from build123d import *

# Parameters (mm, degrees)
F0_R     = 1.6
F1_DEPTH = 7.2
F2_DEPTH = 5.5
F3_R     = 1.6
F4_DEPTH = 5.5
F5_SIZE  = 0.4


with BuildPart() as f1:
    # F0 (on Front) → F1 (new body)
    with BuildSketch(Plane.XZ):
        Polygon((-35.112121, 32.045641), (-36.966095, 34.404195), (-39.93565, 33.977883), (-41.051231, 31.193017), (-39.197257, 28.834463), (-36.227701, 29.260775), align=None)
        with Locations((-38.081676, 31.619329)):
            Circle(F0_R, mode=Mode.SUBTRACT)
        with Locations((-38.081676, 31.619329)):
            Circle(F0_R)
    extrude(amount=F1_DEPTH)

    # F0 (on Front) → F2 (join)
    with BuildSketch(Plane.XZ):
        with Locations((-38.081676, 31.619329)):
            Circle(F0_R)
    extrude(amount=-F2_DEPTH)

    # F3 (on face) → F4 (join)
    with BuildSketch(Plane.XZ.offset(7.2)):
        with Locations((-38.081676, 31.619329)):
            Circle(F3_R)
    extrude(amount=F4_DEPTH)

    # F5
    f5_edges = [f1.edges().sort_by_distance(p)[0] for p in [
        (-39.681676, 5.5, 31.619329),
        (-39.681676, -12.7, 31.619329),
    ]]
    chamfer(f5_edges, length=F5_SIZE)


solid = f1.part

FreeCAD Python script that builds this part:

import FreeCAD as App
import Part
import Sketcher

V = App.Vector


def edges_at(feature, points):
    """Names of the edges that pass closest to the given points."""
    edges = feature.Shape.Edges
    near = lambda p: min(range(len(edges)), key=lambda i: edges[i].distToShape(Part.Vertex(*p))[0])
    return sorted({f"Edge{near(p) + 1}" for p in points})

doc = App.newDocument("Part")
body = doc.addObject("PartDesign::Body", "Body")

# Sketch on XZ plane
sketch1 = doc.addObject("Sketcher::SketchObject", "Sketch")
body.addObject(sketch1)
sketch1.AttachmentSupport = (doc.XZ_Plane, [""])
sketch1.MapMode = "FlatFace"
sketch1.addGeometry(Part.LineSegment(V(-35.1, 32, 0), V(-37, 34.4, 0)), False)
sketch1.addGeometry(Part.LineSegment(V(-37, 34.4, 0), V(-39.9, 34, 0)), False)
sketch1.addGeometry(Part.LineSegment(V(-39.9, 34, 0), V(-41.1, 31.2, 0)), False)
sketch1.addGeometry(Part.LineSegment(V(-41.1, 31.2, 0), V(-39.2, 28.8, 0)), False)
sketch1.addGeometry(Part.LineSegment(V(-39.2, 28.8, 0), V(-36.2, 29.3, 0)), False)
sketch1.addGeometry(Part.LineSegment(V(-36.2, 29.3, 0), V(-35.1, 32, 0)), False)
sketch1.addConstraint(Sketcher.Constraint("Coincident", 0, 2, 1, 1))
sketch1.addConstraint(Sketcher.Constraint("Coincident", 1, 2, 2, 1))
sketch1.addConstraint(Sketcher.Constraint("Coincident", 2, 2, 3, 1))
sketch1.addConstraint(Sketcher.Constraint("Coincident", 3, 2, 4, 1))
sketch1.addConstraint(Sketcher.Constraint("Coincident", 4, 2, 5, 1))
sketch1.addConstraint(Sketcher.Constraint("Coincident", 5, 2, 0, 1))
sketch1.addConstraint(Sketcher.Constraint("Parallel", 0, 3))
sketch1.addConstraint(Sketcher.Constraint("Parallel", 1, 4))
sketch1.addConstraint(Sketcher.Constraint("Parallel", 2, 5))
sketch1.addConstraint(Sketcher.Constraint("Equal", 0, 1))
sketch1.addConstraint(Sketcher.Constraint("Equal", 1, 2))
sketch1.addConstraint(Sketcher.Constraint("Equal", 2, 3))
sketch1.addConstraint(Sketcher.Constraint("Distance", 0, 2.999999))
sketch1.addConstraint(Sketcher.Constraint("DistanceX", 4, 2, -1, 1, 36.227701))
sketch1.addConstraint(Sketcher.Constraint("DistanceX", 1, 2, -1, 1, 39.93565))
sketch1.addConstraint(Sketcher.Constraint("DistanceX", 2, 2, -1, 1, 41.051231))
sketch1.addConstraint(Sketcher.Constraint("DistanceY", -1, 1, 5, 2, 32.045641))
sketch1.addConstraint(Sketcher.Constraint("DistanceY", 2, 2, 0, 2, 3.211178))
pad1 = doc.addObject("PartDesign::Pad", "Pad")
body.addObject(pad1)
pad1.Profile = sketch1
pad1.Length = 7.2

# Sketch on XZ plane
sketch2 = doc.addObject("Sketcher::SketchObject", "Sketch001")
body.addObject(sketch2)
sketch2.AttachmentSupport = (doc.XZ_Plane, [""])
sketch2.MapMode = "FlatFace"
sketch2.addGeometry(Part.Circle(V(-38.1, 31.6, 0), V(0, 0, 1), 1.6), False)
sketch2.addConstraint(Sketcher.Constraint("Diameter", 0, 3.2))
sketch2.addConstraint(Sketcher.Constraint("DistanceY", -1, 1, 0, 3, 31.619329))
sketch2.addConstraint(Sketcher.Constraint("DistanceX", 0, 3, -1, 1, 38.081676))
pad2 = doc.addObject("PartDesign::Pad", "Pad001")
body.addObject(pad2)
pad2.Profile = sketch2
pad2.Length = 5.5
pad2.Reversed = True

# Sketch on XZ plane
sketch3 = doc.addObject("Sketcher::SketchObject", "Sketch002")
body.addObject(sketch3)
sketch3.AttachmentSupport = (doc.XZ_Plane, [""])
sketch3.MapMode = "FlatFace"
sketch3.AttachmentOffset = App.Placement(V(0, 0, 7.2), App.Rotation())
sketch3.addGeometry(Part.Circle(V(-38.1, 31.6, 0), V(0, 0, 1), 1.6), False)
sketch3.addConstraint(Sketcher.Constraint("Diameter", 0, 3.2))
sketch3.addConstraint(Sketcher.Constraint("DistanceY", -1, 1, 0, 3, 31.619329))
sketch3.addConstraint(Sketcher.Constraint("DistanceX", 0, 3, -1, 1, 38.081676))
pad3 = doc.addObject("PartDesign::Pad", "Pad002")
body.addObject(pad3)
pad3.Profile = sketch3
pad3.Length = 5.5
doc.recompute()

chamfer = doc.addObject("PartDesign::Chamfer", "Chamfer")
body.addObject(chamfer)
chamfer.Base = (pad3, edges_at(pad3, [(-39.682, 5.5, 31.619), (-39.682, -12.7, 31.619)]))
chamfer.Size = 0.4

doc.recompute()
